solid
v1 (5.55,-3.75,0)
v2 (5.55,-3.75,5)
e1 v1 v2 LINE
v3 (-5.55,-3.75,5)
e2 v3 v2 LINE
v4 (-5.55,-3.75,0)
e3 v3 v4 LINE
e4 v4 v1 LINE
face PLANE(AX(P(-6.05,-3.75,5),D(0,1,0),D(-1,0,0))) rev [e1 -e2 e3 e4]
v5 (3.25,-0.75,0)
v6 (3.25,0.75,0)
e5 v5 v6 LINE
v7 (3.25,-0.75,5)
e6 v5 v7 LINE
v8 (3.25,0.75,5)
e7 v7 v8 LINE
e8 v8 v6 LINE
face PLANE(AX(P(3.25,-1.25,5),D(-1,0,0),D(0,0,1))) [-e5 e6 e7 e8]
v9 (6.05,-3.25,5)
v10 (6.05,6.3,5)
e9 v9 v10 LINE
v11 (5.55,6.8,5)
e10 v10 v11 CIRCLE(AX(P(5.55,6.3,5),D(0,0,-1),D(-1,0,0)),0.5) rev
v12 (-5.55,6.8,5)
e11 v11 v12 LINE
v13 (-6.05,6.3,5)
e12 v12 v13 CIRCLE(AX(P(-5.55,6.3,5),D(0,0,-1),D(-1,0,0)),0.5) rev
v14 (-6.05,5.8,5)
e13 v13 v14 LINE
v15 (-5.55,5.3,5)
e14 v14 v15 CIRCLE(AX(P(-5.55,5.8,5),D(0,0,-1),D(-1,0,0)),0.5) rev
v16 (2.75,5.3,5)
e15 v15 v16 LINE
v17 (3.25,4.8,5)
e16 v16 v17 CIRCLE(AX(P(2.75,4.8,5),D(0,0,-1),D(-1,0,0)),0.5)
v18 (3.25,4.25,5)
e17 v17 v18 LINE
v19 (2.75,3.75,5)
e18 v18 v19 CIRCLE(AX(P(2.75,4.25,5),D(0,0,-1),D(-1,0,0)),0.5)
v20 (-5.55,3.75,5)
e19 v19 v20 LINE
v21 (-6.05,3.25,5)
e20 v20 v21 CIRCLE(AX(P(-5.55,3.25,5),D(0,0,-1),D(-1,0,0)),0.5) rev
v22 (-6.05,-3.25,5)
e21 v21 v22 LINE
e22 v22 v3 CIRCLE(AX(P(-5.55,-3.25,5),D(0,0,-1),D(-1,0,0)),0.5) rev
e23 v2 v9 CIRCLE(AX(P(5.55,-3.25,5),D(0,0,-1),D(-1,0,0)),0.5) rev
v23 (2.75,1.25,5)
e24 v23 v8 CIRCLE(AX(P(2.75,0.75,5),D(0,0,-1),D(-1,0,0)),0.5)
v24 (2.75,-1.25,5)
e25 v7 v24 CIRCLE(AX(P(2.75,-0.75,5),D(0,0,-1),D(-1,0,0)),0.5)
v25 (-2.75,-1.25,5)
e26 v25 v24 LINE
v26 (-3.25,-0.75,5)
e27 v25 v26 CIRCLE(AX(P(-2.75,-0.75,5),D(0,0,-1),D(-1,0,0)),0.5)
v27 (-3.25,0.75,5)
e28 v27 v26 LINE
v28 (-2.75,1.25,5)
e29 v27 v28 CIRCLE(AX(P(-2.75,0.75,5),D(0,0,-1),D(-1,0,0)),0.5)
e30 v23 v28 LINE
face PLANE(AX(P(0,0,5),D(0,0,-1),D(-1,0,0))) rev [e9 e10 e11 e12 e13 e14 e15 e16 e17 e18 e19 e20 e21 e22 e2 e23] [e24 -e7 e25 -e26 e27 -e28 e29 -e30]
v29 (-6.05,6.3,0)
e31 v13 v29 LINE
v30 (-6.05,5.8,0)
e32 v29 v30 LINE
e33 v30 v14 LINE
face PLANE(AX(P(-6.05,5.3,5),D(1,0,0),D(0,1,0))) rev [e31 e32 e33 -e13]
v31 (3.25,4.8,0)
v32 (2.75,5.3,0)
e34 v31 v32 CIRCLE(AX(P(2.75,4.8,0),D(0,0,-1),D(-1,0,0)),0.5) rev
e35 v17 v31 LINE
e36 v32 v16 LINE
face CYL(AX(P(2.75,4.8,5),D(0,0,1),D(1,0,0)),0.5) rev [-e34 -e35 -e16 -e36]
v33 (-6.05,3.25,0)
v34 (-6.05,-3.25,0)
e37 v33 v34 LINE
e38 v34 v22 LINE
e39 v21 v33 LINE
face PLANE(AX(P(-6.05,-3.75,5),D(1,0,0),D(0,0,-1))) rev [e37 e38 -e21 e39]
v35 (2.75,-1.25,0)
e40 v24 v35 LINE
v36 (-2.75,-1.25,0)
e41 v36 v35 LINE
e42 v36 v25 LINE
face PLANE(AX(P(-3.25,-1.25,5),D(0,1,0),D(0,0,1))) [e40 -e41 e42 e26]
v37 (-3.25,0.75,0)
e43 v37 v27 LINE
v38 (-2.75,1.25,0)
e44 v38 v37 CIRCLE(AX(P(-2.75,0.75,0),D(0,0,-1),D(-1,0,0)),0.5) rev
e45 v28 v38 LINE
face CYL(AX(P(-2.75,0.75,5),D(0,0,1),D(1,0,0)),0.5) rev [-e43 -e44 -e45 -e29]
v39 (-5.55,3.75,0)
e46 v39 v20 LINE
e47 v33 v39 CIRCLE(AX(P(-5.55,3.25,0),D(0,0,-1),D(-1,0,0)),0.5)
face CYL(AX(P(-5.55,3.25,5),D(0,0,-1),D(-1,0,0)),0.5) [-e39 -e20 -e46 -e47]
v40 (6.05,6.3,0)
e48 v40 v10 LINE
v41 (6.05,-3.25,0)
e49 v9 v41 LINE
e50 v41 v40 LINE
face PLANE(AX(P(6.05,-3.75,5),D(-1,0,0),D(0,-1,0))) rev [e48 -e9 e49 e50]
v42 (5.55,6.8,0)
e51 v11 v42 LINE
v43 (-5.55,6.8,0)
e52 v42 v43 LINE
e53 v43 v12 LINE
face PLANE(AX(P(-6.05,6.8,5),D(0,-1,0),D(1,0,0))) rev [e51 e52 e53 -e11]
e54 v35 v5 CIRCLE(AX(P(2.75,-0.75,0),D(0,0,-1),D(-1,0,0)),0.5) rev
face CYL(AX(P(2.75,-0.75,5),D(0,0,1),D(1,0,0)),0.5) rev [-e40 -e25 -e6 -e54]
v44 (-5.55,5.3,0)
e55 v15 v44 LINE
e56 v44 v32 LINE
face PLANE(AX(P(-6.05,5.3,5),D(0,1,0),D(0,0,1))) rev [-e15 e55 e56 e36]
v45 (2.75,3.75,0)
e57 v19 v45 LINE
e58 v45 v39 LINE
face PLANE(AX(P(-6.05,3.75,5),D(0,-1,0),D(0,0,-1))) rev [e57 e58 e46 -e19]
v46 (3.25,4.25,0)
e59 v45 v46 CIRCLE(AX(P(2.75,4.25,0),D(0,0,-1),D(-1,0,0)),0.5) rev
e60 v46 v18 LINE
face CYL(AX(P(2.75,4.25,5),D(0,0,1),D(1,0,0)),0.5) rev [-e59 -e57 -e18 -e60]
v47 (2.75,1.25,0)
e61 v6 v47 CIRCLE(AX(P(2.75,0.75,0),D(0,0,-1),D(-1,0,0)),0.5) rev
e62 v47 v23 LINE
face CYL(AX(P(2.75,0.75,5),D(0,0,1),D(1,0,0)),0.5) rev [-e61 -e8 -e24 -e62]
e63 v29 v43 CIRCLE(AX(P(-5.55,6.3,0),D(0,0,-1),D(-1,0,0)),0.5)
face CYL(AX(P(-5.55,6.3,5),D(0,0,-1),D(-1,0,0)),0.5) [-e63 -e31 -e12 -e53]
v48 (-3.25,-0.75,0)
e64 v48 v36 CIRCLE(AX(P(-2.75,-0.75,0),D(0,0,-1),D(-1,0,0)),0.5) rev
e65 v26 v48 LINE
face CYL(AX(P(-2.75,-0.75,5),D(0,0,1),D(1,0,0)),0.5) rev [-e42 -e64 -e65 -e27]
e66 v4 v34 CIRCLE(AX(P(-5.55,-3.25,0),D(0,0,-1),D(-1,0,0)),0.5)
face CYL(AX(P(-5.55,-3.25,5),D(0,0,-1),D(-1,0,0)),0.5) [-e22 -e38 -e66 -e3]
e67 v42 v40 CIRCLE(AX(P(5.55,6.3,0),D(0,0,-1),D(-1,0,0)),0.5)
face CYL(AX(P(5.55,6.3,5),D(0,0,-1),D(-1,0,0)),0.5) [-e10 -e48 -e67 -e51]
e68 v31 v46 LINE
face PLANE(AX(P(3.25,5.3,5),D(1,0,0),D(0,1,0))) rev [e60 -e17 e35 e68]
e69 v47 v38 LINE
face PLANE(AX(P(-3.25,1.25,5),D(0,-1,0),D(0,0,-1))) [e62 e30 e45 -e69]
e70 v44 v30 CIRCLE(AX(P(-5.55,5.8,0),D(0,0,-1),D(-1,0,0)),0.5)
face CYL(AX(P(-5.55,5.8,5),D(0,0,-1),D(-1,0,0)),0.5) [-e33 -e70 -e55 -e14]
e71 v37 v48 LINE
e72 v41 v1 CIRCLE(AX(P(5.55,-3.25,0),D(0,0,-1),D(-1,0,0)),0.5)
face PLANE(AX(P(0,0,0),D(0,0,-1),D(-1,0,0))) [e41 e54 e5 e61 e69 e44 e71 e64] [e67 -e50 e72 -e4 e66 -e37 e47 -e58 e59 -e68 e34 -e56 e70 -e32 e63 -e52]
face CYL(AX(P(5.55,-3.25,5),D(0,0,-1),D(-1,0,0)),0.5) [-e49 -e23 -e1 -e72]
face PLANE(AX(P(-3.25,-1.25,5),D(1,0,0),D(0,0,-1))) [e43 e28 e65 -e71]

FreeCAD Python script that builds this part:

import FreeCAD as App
import Part
import Sketcher
from FreeCAD import Vector
Q = App.Units.Quantity


def edges_at(feature, points):
    """Names of the edges that pass closest to the given points."""
    edges = feature.Shape.Edges
    near = lambda p: min(range(len(edges)), key=lambda i: edges[i].distToShape(Part.Vertex(*p))[0])
    return sorted({f"Edge{near(p) + 1}" for p in points})

doc = App.newDocument("Part")
params = doc.addObject("Spreadsheet::Sheet", "Params")
for row, (alias, value) in enumerate([
    ("sketch1_width", "12.1 mm"),
    ("sketch1_width2", "9.3 mm"),
    ("sketch1_height", "1.5 mm"),
    ("sketch1_height2", "7.5 mm"),
    ("sketch1_height3", "2.5 mm"),
    ("pad1_length", "5 mm"),
    ("fillet_radius", "0.5 mm"),
], start=1):
    params.set(f"A{row}", alias)
    params.set(f"B{row}", "=" + value)
    params.setAlias(f"B{row}", alias)

body = doc.addObject("PartDesign::Body", "Body")

sketch1 = body.newObject("Sketcher::SketchObject", "Sketch")
sketch1.AttachmentSupport = (doc.getObject("XY_Plane"), [""])
sketch1.MapMode = "FlatFace"
sketch1.addGeometry([
    Part.LineSegment(Vector(-6, -3.8, 0), Vector(6, -3.8, 0)),
    Part.LineSegment(Vector(6, -3.8, 0), Vector(6, 6.8, 0)),
    Part.LineSegment(Vector(6, 6.8, 0), Vector(-6, 6.8, 0)),
    Part.LineSegment(Vector(-6, 6.8, 0), Vector(-6, 5.3, 0)),
    Part.LineSegment(Vector(-6, 5.3, 0), Vector(3.2, 5.3, 0)),
    Part.LineSegment(Vector(3.2, 5.3, 0), Vector(3.2, 3.8, 0)),
    Part.LineSegment(Vector(3.2, 3.8, 0), Vector(-6, 3.8, 0)),
    Part.LineSegment(Vector(-6, 3.8, 0), Vector(-6, -3.8, 0)),
    Part.LineSegment(Vector(3.2, -1.2, 0), Vector(-3.2, -1.2, 0)),
    Part.LineSegment(Vector(-3.2, -1.2, 0), Vector(-3.2, 1.2, 0)),
    Part.LineSegment(Vector(-3.2, 1.2, 0), Vector(3.2, 1.2, 0)),
    Part.LineSegment(Vector(3.2, 1.2, 0), Vector(3.2, -1.2, 0)),
], False)
sketch1.addConstraint([
    Sketcher.Constraint("Coincident", 0, 2, 1, 1),
    Sketcher.Constraint("Coincident", 1, 2, 2, 1),
    Sketcher.Constraint("Coincident", 2, 2, 3, 1),
    Sketcher.Constraint("Coincident", 3, 2, 4, 1),
    Sketcher.Constraint("Coincident", 4, 2, 5, 1),
    Sketcher.Constraint("Coincident", 5, 2, 6, 1),
    Sketcher.Constraint("Coincident", 6, 2, 7, 1),
    Sketcher.Constraint("Coincident", 7, 2, 0, 1),
    Sketcher.Constraint("Coincident", 8, 2, 9, 1),
    Sketcher.Constraint("Coincident", 9, 2, 10, 1),
    Sketcher.Constraint("Coincident", 10, 2, 11, 1),
    Sketcher.Constraint("Coincident", 11, 2, 8, 1),
    Sketcher.Constraint("Horizontal", 0),
    Sketcher.Constraint("Vertical", 1),
    Sketcher.Constraint("Horizontal", 2),
    Sketcher.Constraint("Vertical", 3),
    Sketcher.Constraint("Horizontal", 4),
    Sketcher.Constraint("Vertical", 5),
    Sketcher.Constraint("Horizontal", 6),
    Sketcher.Constraint("Vertical", 7),
    Sketcher.Constraint("Horizontal", 8),
    Sketcher.Constraint("Vertical", 9),
    Sketcher.Constraint("Horizontal", 10),
    Sketcher.Constraint("Vertical", 11),
    Sketcher.Constraint("Symmetric", 0, 2, 6, 2, -1, 1),
    Sketcher.Constraint("Symmetric", 8, 2, 10, 2, -1, 1),
    Sketcher.Constraint("Vertical", 3, 2, 6, 2),
    Sketcher.Constraint("Vertical", 5, 2, 10, 2),
    Sketcher.Constraint("DistanceX", 0, 1, 0, 2, Q("12.1 mm")),
    Sketcher.Constraint("DistanceX", 4, 1, 4, 2, Q("9.3 mm")),
    Sketcher.Constraint("DistanceY", 3, 2, 3, 1, Q("1.5 mm")),
    Sketcher.Constraint("DistanceY", 7, 2, 7, 1, Q("7.5 mm")),
    Sketcher.Constraint("DistanceY", 9, 1, 9, 2, Q("2.5 mm")),
    Sketcher.Constraint("DistanceY", 1, 1, 1, 2, Q("10.55 mm")),
])
sketch1.setExpression("Constraints[28]", "Params.sketch1_width")
sketch1.setExpression("Constraints[29]", "Params.sketch1_width2")
sketch1.setExpression("Constraints[30]", "Params.sketch1_height")
sketch1.setExpression("Constraints[31]", "Params.sketch1_height2")
sketch1.setExpression("Constraints[32]", "Params.sketch1_height3")
pad1 = body.newObject("PartDesign::Pad", "Pad")
pad1.Profile = sketch1
pad1.setExpression("Length", "Params.pad1_length")
doc.recompute()

fillet = body.newObject("PartDesign::Fillet", "Fillet")
fillet.Base = (pad1, edges_at(pad1, [
    (-6.05, 3.75, 2.5),
    (3.25, 3.75, 2.5),
    (3.25, 5.3, 2.5),
    (-6.05, 5.3, 2.5),
    (-6.05, 6.8, 2.5),
    (6.05, 6.8, 2.5),
    (6.05, -3.75, 2.5),
    (-6.05, -3.75, 2.5),
    (-3.25, 1.25, 2.5),
    (-3.25, -1.25, 2.5),
    (3.25, -1.25, 2.5),
    (3.25, 1.25, 2.5),
]))
fillet.setExpression("Radius", "Params.fillet_radius")

doc.recompute()
